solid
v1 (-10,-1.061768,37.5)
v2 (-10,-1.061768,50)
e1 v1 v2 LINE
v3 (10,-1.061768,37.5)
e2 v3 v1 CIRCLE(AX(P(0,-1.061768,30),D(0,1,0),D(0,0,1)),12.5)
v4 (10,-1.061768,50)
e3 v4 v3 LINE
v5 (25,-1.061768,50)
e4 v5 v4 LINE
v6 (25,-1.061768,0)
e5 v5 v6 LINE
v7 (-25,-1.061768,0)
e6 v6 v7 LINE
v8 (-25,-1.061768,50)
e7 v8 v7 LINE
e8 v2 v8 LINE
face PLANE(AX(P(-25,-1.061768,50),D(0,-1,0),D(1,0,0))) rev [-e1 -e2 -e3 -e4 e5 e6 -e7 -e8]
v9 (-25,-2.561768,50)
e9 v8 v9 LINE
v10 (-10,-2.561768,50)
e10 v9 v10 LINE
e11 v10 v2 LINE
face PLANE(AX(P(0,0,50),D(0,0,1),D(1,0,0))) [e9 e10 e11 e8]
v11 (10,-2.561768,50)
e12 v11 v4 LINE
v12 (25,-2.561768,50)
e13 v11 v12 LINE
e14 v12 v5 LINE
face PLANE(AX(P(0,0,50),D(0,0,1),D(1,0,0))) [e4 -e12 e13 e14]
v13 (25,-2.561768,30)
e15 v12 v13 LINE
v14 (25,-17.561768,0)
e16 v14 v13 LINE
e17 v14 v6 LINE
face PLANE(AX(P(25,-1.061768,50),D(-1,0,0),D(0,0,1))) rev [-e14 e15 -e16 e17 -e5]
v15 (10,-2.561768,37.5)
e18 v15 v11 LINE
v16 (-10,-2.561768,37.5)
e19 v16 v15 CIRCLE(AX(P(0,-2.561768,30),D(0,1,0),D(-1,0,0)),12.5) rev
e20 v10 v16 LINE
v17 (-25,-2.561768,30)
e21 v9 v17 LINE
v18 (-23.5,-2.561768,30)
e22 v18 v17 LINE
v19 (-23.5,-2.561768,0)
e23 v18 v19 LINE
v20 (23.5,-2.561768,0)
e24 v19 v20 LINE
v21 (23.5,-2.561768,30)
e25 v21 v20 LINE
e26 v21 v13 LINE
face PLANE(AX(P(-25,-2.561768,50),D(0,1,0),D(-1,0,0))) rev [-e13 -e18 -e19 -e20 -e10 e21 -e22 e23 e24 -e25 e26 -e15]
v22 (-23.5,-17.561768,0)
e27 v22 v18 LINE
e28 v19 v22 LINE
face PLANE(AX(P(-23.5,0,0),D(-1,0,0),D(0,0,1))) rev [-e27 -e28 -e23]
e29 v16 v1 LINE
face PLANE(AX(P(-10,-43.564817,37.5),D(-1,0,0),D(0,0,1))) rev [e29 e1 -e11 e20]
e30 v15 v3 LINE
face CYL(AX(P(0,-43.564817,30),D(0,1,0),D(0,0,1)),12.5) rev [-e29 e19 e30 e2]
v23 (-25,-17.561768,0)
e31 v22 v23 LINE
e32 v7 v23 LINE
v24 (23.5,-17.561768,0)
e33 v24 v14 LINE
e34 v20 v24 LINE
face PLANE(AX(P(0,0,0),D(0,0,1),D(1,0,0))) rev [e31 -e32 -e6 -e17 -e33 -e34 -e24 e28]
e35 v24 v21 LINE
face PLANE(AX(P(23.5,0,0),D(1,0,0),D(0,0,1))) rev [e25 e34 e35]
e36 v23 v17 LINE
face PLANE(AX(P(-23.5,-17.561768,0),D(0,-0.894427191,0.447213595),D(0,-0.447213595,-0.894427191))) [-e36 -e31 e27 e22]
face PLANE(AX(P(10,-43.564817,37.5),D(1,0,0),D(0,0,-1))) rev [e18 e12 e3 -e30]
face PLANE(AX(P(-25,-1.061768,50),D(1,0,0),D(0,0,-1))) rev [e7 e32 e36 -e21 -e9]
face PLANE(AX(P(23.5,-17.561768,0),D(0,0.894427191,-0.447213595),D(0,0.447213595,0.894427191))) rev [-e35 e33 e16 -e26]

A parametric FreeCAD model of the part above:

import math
import FreeCAD as App
import Part
import Sketcher

V = App.Vector

doc = App.newDocument("Part")
body = doc.addObject("PartDesign::Body", "Body")

sketch1 = body.newObject("Sketcher::SketchObject", "Sketch")
sketch1.AttachmentSupport = (doc.getObject("XY_Plane"), [""])
sketch1.MapMode = "FlatFace"
sketch1.addGeometry([
    Part.LineSegment(V(-25, -1.1, 0), V(-25, -2.6, 0)),
    Part.LineSegment(V(-25, -2.6, 0), V(25, -2.6, 0)),
    Part.LineSegment(V(25, -2.6, 0), V(25, -1.1, 0)),
    Part.LineSegment(V(25, -1.1, 0), V(-25, -1.1, 0)),
], False)
sketch1.addConstraint([
    Sketcher.Constraint("Coincident", 0, 2, 1, 1),
    Sketcher.Constraint("Coincident", 1, 2, 2, 1),
    Sketcher.Constraint("Coincident", 2, 2, 3, 1),
    Sketcher.Constraint("Coincident", 3, 2, 0, 1),
    Sketcher.Constraint("Vertical", 0),
    Sketcher.Constraint("Horizontal", 1),
    Sketcher.Constraint("Vertical", 2),
    Sketcher.Constraint("Horizontal", 3),
    Sketcher.Constraint("DistanceX", 1, 1, 1, 2, 50.0),
    Sketcher.Constraint("DistanceY", 0, 2, 0, 1, 1.5),
    Sketcher.Constraint("DistanceX", 0, 2, -1, 1, 25.0),
    Sketcher.Constraint("DistanceY", 0, 2, -1, 1, 2.561768),
])
pad1 = body.newObject("PartDesign::Pad", "Pad")
pad1.Profile = sketch1
pad1.Length = 50

sketch2 = body.newObject("Sketcher::SketchObject", "Sketch001")
sketch2.AttachmentSupport = (doc.getObject("XZ_Plane"), [""])
sketch2.MapMode = "FlatFace"
sketch2.AttachmentOffset = App.Placement(V(0, 0, 1.061768), App.Rotation())
sketch2.addGeometry([
    Part.LineSegment(V(-10, 38, 0), V(-10, 50, 0)),
    Part.LineSegment(V(-10, 50, 0), V(10, 50, 0)),
    Part.LineSegment(V(10, 50, 0), V(10, 38, 0)),
    Part.ArcOfCircle(Part.Circle(V(0, 30, 0), V(0, 0, 1), 12), math.radians(143), math.radians(397)),
], False)
sketch2.addConstraint([
    Sketcher.Constraint("Coincident", 0, 2, 1, 1),
    Sketcher.Constraint("Coincident", 1, 2, 2, 1),
    Sketcher.Constraint("Coincident", 2, 2, 3, 2),
    Sketcher.Constraint("Coincident", 3, 1, 0, 1),
    Sketcher.Constraint("Vertical", 0),
    Sketcher.Constraint("Horizontal", 1),
    Sketcher.Constraint("Vertical", 2),
    Sketcher.Constraint("Symmetric", 2, 2, 3, 1, -2),
    Sketcher.Constraint("Radius", 3, 12.5),
    Sketcher.Constraint("DistanceX", 1, 1, 1, 2, 20.0),
    Sketcher.Constraint("DistanceY", 0, 1, 0, 2, 12.5),
    Sketcher.Constraint("DistanceY", -1, 1, 3, 3, 30.0),
])
pocket1 = body.newObject("PartDesign::Pocket", "Pocket")
pocket1.Profile = sketch2
pocket1.Length = 1.5
pocket1.Reversed = True

sketch3 = body.newObject("Sketcher::SketchObject", "Sketch002")
sketch3.AttachmentSupport = (doc.getObject("YZ_Plane"), [""])
sketch3.MapMode = "FlatFace"
sketch3.AttachmentOffset = App.Placement(V(0, 0, -25), App.Rotation())
sketch3.addGeometry([
    Part.LineSegment(V(-3, 0, 0), V(-18, 0, 0)),
    Part.LineSegment(V(-18, 0, 0), V(-3, 30, 0)),
    Part.LineSegment(V(-3, 30, 0), V(-3, 0, 0)),
], False)
sketch3.addConstraint([
    Sketcher.Constraint("Coincident", 0, 2, 1, 1),
    Sketcher.Constraint("Coincident", 1, 2, 2, 1),
    Sketcher.Constraint("Coincident", 2, 2, 0, 1),
    Sketcher.Constraint("Horizontal", 0),
    Sketcher.Constraint("Vertical", 2),
    Sketcher.Constraint("PointOnObject", 0, 2, -1),
    Sketcher.Constraint("DistanceX", 0, 2, 0, 1, 15.0),
    Sketcher.Constraint("DistanceY", 2, 2, 2, 1, 30.0),
    Sketcher.Constraint("DistanceX", 0, 2, -1, 1, 17.561768),
])
pad2 = body.newObject("PartDesign::Pad", "Pad001")
pad2.Profile = sketch3
pad2.Length = 1.5
doc.recompute()

mirrored = body.newObject("PartDesign::Mirrored", "Mirrored")
mirrored.Originals = [pad2]
mirrored.MirrorPlane = (doc.getObject("YZ_Plane"), [""])
body.Tip = mirrored

doc.recompute()
